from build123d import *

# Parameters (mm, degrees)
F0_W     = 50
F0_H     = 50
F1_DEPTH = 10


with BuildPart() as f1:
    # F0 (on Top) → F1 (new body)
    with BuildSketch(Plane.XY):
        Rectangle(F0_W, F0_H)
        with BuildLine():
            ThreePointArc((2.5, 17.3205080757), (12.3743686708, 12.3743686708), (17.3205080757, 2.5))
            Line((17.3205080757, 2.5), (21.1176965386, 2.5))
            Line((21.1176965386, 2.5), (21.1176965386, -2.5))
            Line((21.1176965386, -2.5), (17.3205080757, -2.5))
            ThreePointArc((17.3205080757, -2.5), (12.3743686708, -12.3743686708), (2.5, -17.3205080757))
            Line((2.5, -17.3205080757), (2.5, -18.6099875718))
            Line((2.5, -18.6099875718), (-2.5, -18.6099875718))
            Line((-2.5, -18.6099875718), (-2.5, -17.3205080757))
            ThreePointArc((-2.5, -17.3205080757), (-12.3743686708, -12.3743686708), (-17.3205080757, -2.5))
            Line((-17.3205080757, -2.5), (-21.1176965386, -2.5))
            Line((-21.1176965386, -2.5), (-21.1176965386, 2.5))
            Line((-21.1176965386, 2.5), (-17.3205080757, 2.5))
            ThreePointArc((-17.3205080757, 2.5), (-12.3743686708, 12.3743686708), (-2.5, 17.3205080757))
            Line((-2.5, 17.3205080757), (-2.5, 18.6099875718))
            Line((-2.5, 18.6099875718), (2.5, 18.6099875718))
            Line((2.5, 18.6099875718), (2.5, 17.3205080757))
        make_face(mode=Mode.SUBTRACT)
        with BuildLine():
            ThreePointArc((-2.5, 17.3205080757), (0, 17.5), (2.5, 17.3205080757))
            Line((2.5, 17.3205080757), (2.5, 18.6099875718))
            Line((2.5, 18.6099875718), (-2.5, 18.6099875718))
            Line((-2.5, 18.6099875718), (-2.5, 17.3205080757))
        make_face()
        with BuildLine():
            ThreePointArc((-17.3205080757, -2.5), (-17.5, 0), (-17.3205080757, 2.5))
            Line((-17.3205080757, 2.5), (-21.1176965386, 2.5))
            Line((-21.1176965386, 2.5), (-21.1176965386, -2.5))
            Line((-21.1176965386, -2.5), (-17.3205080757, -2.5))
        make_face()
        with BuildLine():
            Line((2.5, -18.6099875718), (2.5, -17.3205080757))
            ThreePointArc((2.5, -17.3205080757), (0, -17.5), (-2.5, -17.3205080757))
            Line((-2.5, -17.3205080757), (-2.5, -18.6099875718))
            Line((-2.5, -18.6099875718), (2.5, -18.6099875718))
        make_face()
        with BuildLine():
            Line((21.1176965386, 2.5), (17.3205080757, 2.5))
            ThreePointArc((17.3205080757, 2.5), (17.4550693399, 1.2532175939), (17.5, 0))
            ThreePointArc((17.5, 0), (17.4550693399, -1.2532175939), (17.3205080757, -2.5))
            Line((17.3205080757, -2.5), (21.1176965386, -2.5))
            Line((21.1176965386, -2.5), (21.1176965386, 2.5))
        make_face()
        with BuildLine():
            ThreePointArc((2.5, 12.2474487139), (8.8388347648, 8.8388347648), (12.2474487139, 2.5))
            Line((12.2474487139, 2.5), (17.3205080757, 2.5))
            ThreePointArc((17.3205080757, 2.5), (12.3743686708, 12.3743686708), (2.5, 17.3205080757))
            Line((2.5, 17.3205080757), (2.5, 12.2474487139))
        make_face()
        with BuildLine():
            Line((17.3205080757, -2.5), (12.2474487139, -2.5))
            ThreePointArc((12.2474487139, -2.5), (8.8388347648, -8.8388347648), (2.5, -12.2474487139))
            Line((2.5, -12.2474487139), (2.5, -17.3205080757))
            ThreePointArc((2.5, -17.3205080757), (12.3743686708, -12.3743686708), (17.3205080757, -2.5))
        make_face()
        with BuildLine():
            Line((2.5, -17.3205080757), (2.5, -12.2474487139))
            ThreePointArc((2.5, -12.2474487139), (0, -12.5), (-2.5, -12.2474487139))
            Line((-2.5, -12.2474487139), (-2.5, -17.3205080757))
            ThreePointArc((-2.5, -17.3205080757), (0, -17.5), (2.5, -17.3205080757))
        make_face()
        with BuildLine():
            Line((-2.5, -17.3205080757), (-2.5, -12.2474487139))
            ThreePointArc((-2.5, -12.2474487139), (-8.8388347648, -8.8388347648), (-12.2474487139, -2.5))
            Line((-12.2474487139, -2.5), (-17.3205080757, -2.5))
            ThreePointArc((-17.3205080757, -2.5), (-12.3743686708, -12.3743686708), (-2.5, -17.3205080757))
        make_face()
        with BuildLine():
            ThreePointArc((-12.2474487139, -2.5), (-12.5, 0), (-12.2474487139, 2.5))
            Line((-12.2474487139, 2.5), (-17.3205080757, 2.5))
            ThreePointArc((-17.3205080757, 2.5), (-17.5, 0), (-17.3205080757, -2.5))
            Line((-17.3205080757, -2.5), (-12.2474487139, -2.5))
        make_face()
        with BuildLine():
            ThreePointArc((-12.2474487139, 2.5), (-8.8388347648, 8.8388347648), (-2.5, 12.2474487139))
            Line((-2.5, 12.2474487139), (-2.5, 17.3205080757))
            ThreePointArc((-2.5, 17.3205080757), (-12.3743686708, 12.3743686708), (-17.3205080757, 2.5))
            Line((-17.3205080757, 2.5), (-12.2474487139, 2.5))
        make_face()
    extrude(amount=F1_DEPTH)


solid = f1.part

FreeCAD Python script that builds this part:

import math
import FreeCAD as App
import Part
import Sketcher

V = App.Vector
Q = App.Units.Quantity

doc = App.newDocument("Part")
params = doc.addObject("Spreadsheet::Sheet", "Params")
for row, (alias, value) in enumerate([
    ("sketch1_radius", "17.5 mm"),
    ("sketch1_radius2", "12.5 mm"),
    ("sketch1_width", "50 mm"),
    ("pad1_length", "10 mm"),
], start=1):
    params.set(f"A{row}", alias)
    params.set(f"B{row}", "=" + value)
    params.setAlias(f"B{row}", alias)

body = doc.addObject("PartDesign::Body", "Body")

# Sketch on XY plane
sketch1 = doc.addObject("Sketcher::SketchObject", "Sketch")
body.addObject(sketch1)
sketch1.AttachmentSupport = (doc.XY_Plane, [""])
sketch1.MapMode = "FlatFace"
sketch1.addGeometry([
    Part.LineSegment(V(-25, 25, 0), V(-25, -25, 0)),  # 0
    Part.LineSegment(V(-25, -25, 0), V(25, -25, 0)),  # 1
    Part.LineSegment(V(25, -25, 0), V(25, 25, 0)),  # 2
    Part.LineSegment(V(25, 25, 0), V(-25, 25, 0)),  # 3
    Part.ArcOfCircle(Part.Circle(V(0, 0, 0), V(0, 0, 1), 17.5), math.radians(81.79), math.radians(98.21)),  # 4
    Part.LineSegment(V(2.5, 17.3, 0), V(2.5, 12.2, 0)),  # 5
    Part.ArcOfCircle(Part.Circle(V(0, 0, 0), V(0, 0, 1), 12.5), math.radians(12), math.radians(78)),  # 6
    Part.LineSegment(V(12.2, 2.5, 0), V(17.3, 2.5, 0)),  # 7
    Part.ArcOfCircle(Part.Circle(V(0, 0, 0), V(0, 0, 1), 17.5), math.radians(0), math.radians(8.21)),  # 8
    Part.ArcOfCircle(Part.Circle(V(0, 0, 0), V(0, 0, 1), 17.5), math.radians(-8.21), math.radians(0)),  # 9
    Part.LineSegment(V(17.3, -2.5, 0), V(12.2, -2.5, 0)),  # 10
    Part.ArcOfCircle(Part.Circle(V(0, 0, 0), V(0, 0, 1), 12.5), math.radians(-78), math.radians(-12)),  # 11
    Part.ArcOfCircle(Part.Circle(V(0, 0, 0), V(0, 0, 1), 12.5), math.radians(-102), math.radians(-78)),  # 12
    Part.ArcOfCircle(Part.Circle(V(0, 0, 0), V(0, 0, 1), 12.5), math.radians(-168), math.radians(-102)),  # 13
    Part.ArcOfCircle(Part.Circle(V(0, 0, 0), V(0, 0, 1), 12.5), math.radians(168), math.radians(192)),  # 14
    Part.ArcOfCircle(Part.Circle(V(0, 0, 0), V(0, 0, 1), 12.5), math.radians(102), math.radians(168)),  # 15
    Part.LineSegment(V(-2.5, 12.2, 0), V(-2.5, 17.3, 0)),  # 16
], False)
sketch1.addConstraint([
    Sketcher.Constraint("Coincident", 0, 2, 1, 1),
    Sketcher.Constraint("Coincident", 1, 2, 2, 1),
    Sketcher.Constraint("Coincident", 2, 2, 3, 1),
    Sketcher.Constraint("Coincident", 3, 2, 0, 1),
    Sketcher.Constraint("Coincident", 4, 1, 5, 1),
    Sketcher.Constraint("Coincident", 5, 2, 6, 2),
    Sketcher.Constraint("Coincident", 6, 1, 7, 1),
    Sketcher.Constraint("Coincident", 7, 2, 8, 2),
    Sketcher.Constraint("Tangent", 8, 1, 9, 2),
    Sketcher.Constraint("Coincident", 9, 1, 10, 1),
    Sketcher.Constraint("Coincident", 10, 2, 11, 2),
    Sketcher.Constraint("Tangent", 11, 1, 12, 2),
    Sketcher.Constraint("Tangent", 12, 1, 13, 2),
    Sketcher.Constraint("Tangent", 13, 1, 14, 2),
    Sketcher.Constraint("Tangent", 14, 1, 15, 2),
    Sketcher.Constraint("Coincident", 15, 1, 16, 1),
    Sketcher.Constraint("Coincident", 16, 2, 4, 2),
    Sketcher.Constraint("Vertical", 0),
    Sketcher.Constraint("Horizontal", 1),
    Sketcher.Constraint("Vertical", 2),
    Sketcher.Constraint("Horizontal", 3),
    Sketcher.Constraint("Vertical", 5),
    Sketcher.Constraint("Horizontal", 7),
    Sketcher.Constraint("Horizontal", 10),
    Sketcher.Constraint("Vertical", 16),
    Sketcher.Constraint("Coincident", 4, 3, -1, 1),
    Sketcher.Constraint("Coincident", 6, 3, -1, 1),
    Sketcher.Constraint("Coincident", 8, 3, -1, 1),
    Sketcher.Constraint("Coincident", 11, 3, -1, 1),
    Sketcher.Constraint("Coincident", 13, 3, -1, 1),
    Sketcher.Constraint("Coincident", 15, 3, -1, 1),
    Sketcher.Constraint("Equal", 4, 8),
    Sketcher.Constraint("Equal", 8, 9),
    Sketcher.Constraint("Equal", 6, 11),
    Sketcher.Constraint("Symmetric", 0, 2, 2, 2, -1, 1),
    Sketcher.Constraint("PointOnObject", 8, 1, -1),
    Sketcher.Constraint("Horizontal", 11, 1, 12, 1),
    Sketcher.Constraint("Horizontal", 10, 2, 13, 1),
    Sketcher.Constraint("Horizontal", 7, 2, 14, 1),
    Sketcher.Constraint("Horizontal", 5, 2, 15, 1),
    Sketcher.Constraint("Vertical", 7, 2, 9, 1),
    Sketcher.Constraint("Vertical", 5, 2, 11, 1),
    Sketcher.Constraint("Equal", 3, 0),
    Sketcher.Constraint("Equal", 10, 5),
    Sketcher.Constraint("Radius", 4, Q("17.5 mm")),
    Sketcher.Constraint("Radius", 6, Q("12.5 mm")),
    Sketcher.Constraint("DistanceX", 1, 1, 1, 2, Q("50 mm")),
    Sketcher.Constraint("DistanceY", 9, 1, 7, 2, Q("5 mm")),
])
sketch1.setExpression("Constraints[44]", "Params.sketch1_radius")
sketch1.setExpression("Constraints[45]", "Params.sketch1_radius2")
sketch1.setExpression("Constraints[46]", "Params.sketch1_width")
pad1 = doc.addObject("PartDesign::Pad", "Pad")
body.addObject(pad1)
pad1.Profile = sketch1
pad1.setExpression("Length", "Params.pad1_length")

doc.recompute()
